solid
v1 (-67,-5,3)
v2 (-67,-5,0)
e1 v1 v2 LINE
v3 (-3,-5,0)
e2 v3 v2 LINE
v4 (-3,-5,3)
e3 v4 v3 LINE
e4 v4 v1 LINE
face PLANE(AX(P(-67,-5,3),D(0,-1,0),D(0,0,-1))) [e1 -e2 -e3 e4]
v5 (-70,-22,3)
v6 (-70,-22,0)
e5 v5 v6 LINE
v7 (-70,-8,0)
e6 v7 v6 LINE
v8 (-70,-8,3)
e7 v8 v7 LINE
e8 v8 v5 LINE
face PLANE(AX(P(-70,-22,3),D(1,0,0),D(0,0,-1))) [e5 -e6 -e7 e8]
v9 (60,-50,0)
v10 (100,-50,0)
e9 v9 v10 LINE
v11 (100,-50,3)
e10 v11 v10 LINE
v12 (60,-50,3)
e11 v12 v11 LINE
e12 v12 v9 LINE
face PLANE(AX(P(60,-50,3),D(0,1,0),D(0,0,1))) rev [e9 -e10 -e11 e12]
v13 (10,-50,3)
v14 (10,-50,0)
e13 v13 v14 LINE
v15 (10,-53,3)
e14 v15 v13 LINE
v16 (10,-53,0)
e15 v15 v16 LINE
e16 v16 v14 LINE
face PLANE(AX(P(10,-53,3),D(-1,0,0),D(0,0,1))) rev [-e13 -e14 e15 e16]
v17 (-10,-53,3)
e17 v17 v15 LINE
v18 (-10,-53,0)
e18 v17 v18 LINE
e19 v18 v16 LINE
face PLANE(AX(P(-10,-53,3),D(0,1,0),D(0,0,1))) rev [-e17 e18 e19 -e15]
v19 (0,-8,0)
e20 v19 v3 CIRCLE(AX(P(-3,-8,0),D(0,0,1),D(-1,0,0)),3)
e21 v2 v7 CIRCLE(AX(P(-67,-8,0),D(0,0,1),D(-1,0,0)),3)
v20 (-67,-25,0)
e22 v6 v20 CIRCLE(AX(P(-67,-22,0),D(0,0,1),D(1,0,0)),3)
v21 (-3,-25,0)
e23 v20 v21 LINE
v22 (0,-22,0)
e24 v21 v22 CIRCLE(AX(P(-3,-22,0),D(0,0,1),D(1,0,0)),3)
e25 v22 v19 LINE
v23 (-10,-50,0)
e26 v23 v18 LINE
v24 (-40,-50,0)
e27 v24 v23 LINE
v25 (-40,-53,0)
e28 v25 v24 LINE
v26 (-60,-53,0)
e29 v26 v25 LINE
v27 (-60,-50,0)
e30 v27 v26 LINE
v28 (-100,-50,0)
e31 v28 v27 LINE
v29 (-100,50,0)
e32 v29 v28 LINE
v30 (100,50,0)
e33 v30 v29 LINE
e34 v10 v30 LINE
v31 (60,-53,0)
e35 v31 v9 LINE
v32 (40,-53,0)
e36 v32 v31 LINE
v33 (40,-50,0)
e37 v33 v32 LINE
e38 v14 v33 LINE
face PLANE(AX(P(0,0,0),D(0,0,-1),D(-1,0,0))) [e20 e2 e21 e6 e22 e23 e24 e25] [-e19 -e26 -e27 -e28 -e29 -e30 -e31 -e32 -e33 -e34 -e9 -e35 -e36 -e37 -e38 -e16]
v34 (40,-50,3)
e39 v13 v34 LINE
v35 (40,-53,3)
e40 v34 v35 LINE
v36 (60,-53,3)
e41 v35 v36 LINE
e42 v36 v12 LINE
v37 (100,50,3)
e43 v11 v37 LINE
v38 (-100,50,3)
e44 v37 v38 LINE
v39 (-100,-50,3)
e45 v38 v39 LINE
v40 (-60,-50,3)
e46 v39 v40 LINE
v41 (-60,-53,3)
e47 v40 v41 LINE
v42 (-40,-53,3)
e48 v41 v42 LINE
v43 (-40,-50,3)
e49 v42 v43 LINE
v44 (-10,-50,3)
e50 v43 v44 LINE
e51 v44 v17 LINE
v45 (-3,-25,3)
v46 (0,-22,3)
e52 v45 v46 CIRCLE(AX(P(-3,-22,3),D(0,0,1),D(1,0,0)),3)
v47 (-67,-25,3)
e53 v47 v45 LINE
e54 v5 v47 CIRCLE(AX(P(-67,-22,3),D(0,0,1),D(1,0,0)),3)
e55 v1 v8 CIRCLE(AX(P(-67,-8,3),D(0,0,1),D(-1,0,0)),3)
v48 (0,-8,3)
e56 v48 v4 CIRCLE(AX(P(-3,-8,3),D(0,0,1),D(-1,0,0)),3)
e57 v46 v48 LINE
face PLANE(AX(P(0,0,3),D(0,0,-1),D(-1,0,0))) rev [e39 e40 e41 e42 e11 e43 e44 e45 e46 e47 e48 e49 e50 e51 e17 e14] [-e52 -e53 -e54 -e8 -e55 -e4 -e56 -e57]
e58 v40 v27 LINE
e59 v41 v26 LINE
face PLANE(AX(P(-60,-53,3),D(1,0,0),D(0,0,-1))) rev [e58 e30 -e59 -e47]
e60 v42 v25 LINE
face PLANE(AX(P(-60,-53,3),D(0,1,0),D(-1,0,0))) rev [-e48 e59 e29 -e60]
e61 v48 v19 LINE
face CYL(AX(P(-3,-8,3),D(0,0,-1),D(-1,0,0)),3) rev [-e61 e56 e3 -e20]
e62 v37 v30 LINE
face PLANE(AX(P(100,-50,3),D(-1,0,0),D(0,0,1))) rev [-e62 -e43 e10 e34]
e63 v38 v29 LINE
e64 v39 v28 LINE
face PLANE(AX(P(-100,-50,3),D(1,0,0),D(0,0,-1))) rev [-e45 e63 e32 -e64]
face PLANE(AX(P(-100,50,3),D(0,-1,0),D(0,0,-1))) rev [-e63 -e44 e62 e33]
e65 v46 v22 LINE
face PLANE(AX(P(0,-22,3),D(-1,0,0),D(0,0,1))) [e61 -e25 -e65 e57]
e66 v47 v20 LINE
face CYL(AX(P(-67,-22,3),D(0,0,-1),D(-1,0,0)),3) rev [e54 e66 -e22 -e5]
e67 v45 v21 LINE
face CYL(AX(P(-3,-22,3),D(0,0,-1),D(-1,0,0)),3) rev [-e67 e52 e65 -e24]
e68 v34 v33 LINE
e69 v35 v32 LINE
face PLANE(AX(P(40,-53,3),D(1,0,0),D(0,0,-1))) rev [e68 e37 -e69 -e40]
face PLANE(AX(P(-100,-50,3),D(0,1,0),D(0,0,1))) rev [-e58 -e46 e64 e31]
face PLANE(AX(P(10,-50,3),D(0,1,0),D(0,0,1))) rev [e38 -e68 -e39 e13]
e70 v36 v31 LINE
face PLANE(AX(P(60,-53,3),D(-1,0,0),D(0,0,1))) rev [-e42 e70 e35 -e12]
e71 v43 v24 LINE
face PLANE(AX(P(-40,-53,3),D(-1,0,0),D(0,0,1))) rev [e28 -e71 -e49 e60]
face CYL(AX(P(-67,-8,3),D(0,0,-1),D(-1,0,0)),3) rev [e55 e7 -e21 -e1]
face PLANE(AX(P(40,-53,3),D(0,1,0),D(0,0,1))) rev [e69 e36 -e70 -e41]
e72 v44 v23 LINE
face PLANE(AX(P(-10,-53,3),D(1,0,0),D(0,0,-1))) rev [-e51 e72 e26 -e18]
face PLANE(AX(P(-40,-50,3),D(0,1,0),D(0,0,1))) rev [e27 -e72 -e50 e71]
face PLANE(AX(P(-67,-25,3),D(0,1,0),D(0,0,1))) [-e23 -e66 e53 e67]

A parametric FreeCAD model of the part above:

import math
import FreeCAD as App
import Part
import Sketcher


def add_polygon(sketch, points):
    """Adds a closed chain of lines whose ends are joined by coincident constraints."""
    first, n = sketch.GeometryCount, len(points)
    for a, b in zip(points, points[1:] + points[:1]):
        sketch.addGeometry(Part.LineSegment(App.Vector(*a, 0), App.Vector(*b, 0)), False)
    for i in range(n):
        sketch.addConstraint(Sketcher.Constraint("Coincident", first + i, 2, first + (i + 1) % n, 1))

doc = App.newDocument("Part")
body = doc.addObject("PartDesign::Body", "Body")

# Sketch on XY plane
sketch1 = doc.addObject("Sketcher::SketchObject", "Sketch")
body.addObject(sketch1)
sketch1.AttachmentSupport = (doc.XY_Plane, [""])
sketch1.MapMode = "FlatFace"
add_polygon(sketch1, [(-100, -50), (-60, -50), (-60, -53), (-40, -53), (-40, -50), (-10, -50), (-10, -53), (10, -53), (10, -50), (40, -50), (40, -53), (60, -53), (60, -50), (100, -50), (100, 50), (-100, 50)])  # lines 0-15
sketch1.addGeometry(Part.LineSegment(App.Vector(-3, -25, 0), App.Vector(-67, -25, 0)), False)  # 16
sketch1.addGeometry(Part.ArcOfCircle(Part.Circle(App.Vector(-67, -22, 0), App.Vector(0, 0, 1), 3), math.radians(180), math.radians(270)), False)  # 17
sketch1.addGeometry(Part.LineSegment(App.Vector(-70, -22, 0), App.Vector(-70, -8, 0)), False)  # 18
sketch1.addGeometry(Part.ArcOfCircle(Part.Circle(App.Vector(-67, -8, 0), App.Vector(0, 0, 1), 3), math.radians(90), math.radians(180)), False)  # 19
sketch1.addGeometry(Part.LineSegment(App.Vector(-67, -5, 0), App.Vector(-3, -5, 0)), False)  # 20
sketch1.addGeometry(Part.ArcOfCircle(Part.Circle(App.Vector(-3, -8, 0), App.Vector(0, 0, 1), 3), math.radians(0), math.radians(90)), False)  # 21
sketch1.addGeometry(Part.LineSegment(App.Vector(0, -8, 0), App.Vector(0, -22, 0)), False)  # 22
sketch1.addGeometry(Part.ArcOfCircle(Part.Circle(App.Vector(-3, -22, 0), App.Vector(0, 0, 1), 3), math.radians(-90), math.radians(0)), False)  # 23
sketch1.addConstraint(Sketcher.Constraint("Tangent", 16, 2, 17, 2))
sketch1.addConstraint(Sketcher.Constraint("Tangent", 17, 1, 18, 1))
sketch1.addConstraint(Sketcher.Constraint("Tangent", 18, 2, 19, 2))
sketch1.addConstraint(Sketcher.Constraint("Tangent", 19, 1, 20, 1))
sketch1.addConstraint(Sketcher.Constraint("Tangent", 20, 2, 21, 2))
sketch1.addConstraint(Sketcher.Constraint("Tangent", 21, 1, 22, 1))
sketch1.addConstraint(Sketcher.Constraint("Tangent", 22, 2, 23, 2))
sketch1.addConstraint(Sketcher.Constraint("Tangent", 23, 1, 16, 1))
sketch1.addConstraint(Sketcher.Constraint("Horizontal", 0))
sketch1.addConstraint(Sketcher.Constraint("Vertical", 1))
sketch1.addConstraint(Sketcher.Constraint("Horizontal", 2))
sketch1.addConstraint(Sketcher.Constraint("Vertical", 3))
sketch1.addConstraint(Sketcher.Constraint("Horizontal", 4))
sketch1.addConstraint(Sketcher.Constraint("Vertical", 5))
sketch1.addConstraint(Sketcher.Constraint("Horizontal", 6))
sketch1.addConstraint(Sketcher.Constraint("Vertical", 7))
sketch1.addConstraint(Sketcher.Constraint("Horizontal", 8))
sketch1.addConstraint(Sketcher.Constraint("Vertical", 9))
sketch1.addConstraint(Sketcher.Constraint("Horizontal", 10))
sketch1.addConstraint(Sketcher.Constraint("Vertical", 11))
sketch1.addConstraint(Sketcher.Constraint("Horizontal", 12))
sketch1.addConstraint(Sketcher.Constraint("Vertical", 13))
sketch1.addConstraint(Sketcher.Constraint("Horizontal", 14))
sketch1.addConstraint(Sketcher.Constraint("Vertical", 15))
sketch1.addConstraint(Sketcher.Constraint("Horizontal", 16))
sketch1.addConstraint(Sketcher.Constraint("Vertical", 18))
sketch1.addConstraint(Sketcher.Constraint("Horizontal", 20))
sketch1.addConstraint(Sketcher.Constraint("Vertical", 22))
sketch1.addConstraint(Sketcher.Constraint("Equal", 17, 19))
sketch1.addConstraint(Sketcher.Constraint("Equal", 19, 21))
sketch1.addConstraint(Sketcher.Constraint("Equal", 21, 23))
sketch1.addConstraint(Sketcher.Constraint("Symmetric", 12, 2, 14, 2, -1, 1))
sketch1.addConstraint(Sketcher.Constraint("Symmetric", 4, 2, 7, 2, -2))
sketch1.addConstraint(Sketcher.Constraint("Symmetric", 2, 2, 9, 2, -2))
sketch1.addConstraint(Sketcher.Constraint("Symmetric", 0, 2, 11, 2, -2))
sketch1.addConstraint(Sketcher.Constraint("PointOnObject", 21, 1, -2))
sketch1.addConstraint(Sketcher.Constraint("Horizontal", 0, 2, 3, 2))
sketch1.addConstraint(Sketcher.Constraint("Horizontal", 2, 2, 5, 2))
sketch1.addConstraint(Sketcher.Constraint("Equal", 2, 6))
sketch1.addConstraint(Sketcher.Constraint("Radius", 17, 3.0))
sketch1.addConstraint(Sketcher.Constraint("DistanceX", 0, 1, 0, 2, 40.0))
sketch1.addConstraint(Sketcher.Constraint("DistanceX", 2, 1, 2, 2, 20.0))
sketch1.addConstraint(Sketcher.Constraint("DistanceX", 4, 1, 4, 2, 30.0))
sketch1.addConstraint(Sketcher.Constraint("DistanceX", 16, 2, 16, 1, 64.0))
sketch1.addConstraint(Sketcher.Constraint("DistanceY", 1, 2, 1, 1, 3.0))
sketch1.addConstraint(Sketcher.Constraint("DistanceY", 13, 1, 13, 2, 100.0))
sketch1.addConstraint(Sketcher.Constraint("DistanceY", 18, 1, 18, 2, 14.0))
sketch1.addConstraint(Sketcher.Constraint("DistanceY", 17, 3, -1, 1, 22.0))
pad1 = doc.addObject("PartDesign::Pad", "Pad")
body.addObject(pad1)
pad1.Profile = sketch1
pad1.Length = 3

doc.recompute()
